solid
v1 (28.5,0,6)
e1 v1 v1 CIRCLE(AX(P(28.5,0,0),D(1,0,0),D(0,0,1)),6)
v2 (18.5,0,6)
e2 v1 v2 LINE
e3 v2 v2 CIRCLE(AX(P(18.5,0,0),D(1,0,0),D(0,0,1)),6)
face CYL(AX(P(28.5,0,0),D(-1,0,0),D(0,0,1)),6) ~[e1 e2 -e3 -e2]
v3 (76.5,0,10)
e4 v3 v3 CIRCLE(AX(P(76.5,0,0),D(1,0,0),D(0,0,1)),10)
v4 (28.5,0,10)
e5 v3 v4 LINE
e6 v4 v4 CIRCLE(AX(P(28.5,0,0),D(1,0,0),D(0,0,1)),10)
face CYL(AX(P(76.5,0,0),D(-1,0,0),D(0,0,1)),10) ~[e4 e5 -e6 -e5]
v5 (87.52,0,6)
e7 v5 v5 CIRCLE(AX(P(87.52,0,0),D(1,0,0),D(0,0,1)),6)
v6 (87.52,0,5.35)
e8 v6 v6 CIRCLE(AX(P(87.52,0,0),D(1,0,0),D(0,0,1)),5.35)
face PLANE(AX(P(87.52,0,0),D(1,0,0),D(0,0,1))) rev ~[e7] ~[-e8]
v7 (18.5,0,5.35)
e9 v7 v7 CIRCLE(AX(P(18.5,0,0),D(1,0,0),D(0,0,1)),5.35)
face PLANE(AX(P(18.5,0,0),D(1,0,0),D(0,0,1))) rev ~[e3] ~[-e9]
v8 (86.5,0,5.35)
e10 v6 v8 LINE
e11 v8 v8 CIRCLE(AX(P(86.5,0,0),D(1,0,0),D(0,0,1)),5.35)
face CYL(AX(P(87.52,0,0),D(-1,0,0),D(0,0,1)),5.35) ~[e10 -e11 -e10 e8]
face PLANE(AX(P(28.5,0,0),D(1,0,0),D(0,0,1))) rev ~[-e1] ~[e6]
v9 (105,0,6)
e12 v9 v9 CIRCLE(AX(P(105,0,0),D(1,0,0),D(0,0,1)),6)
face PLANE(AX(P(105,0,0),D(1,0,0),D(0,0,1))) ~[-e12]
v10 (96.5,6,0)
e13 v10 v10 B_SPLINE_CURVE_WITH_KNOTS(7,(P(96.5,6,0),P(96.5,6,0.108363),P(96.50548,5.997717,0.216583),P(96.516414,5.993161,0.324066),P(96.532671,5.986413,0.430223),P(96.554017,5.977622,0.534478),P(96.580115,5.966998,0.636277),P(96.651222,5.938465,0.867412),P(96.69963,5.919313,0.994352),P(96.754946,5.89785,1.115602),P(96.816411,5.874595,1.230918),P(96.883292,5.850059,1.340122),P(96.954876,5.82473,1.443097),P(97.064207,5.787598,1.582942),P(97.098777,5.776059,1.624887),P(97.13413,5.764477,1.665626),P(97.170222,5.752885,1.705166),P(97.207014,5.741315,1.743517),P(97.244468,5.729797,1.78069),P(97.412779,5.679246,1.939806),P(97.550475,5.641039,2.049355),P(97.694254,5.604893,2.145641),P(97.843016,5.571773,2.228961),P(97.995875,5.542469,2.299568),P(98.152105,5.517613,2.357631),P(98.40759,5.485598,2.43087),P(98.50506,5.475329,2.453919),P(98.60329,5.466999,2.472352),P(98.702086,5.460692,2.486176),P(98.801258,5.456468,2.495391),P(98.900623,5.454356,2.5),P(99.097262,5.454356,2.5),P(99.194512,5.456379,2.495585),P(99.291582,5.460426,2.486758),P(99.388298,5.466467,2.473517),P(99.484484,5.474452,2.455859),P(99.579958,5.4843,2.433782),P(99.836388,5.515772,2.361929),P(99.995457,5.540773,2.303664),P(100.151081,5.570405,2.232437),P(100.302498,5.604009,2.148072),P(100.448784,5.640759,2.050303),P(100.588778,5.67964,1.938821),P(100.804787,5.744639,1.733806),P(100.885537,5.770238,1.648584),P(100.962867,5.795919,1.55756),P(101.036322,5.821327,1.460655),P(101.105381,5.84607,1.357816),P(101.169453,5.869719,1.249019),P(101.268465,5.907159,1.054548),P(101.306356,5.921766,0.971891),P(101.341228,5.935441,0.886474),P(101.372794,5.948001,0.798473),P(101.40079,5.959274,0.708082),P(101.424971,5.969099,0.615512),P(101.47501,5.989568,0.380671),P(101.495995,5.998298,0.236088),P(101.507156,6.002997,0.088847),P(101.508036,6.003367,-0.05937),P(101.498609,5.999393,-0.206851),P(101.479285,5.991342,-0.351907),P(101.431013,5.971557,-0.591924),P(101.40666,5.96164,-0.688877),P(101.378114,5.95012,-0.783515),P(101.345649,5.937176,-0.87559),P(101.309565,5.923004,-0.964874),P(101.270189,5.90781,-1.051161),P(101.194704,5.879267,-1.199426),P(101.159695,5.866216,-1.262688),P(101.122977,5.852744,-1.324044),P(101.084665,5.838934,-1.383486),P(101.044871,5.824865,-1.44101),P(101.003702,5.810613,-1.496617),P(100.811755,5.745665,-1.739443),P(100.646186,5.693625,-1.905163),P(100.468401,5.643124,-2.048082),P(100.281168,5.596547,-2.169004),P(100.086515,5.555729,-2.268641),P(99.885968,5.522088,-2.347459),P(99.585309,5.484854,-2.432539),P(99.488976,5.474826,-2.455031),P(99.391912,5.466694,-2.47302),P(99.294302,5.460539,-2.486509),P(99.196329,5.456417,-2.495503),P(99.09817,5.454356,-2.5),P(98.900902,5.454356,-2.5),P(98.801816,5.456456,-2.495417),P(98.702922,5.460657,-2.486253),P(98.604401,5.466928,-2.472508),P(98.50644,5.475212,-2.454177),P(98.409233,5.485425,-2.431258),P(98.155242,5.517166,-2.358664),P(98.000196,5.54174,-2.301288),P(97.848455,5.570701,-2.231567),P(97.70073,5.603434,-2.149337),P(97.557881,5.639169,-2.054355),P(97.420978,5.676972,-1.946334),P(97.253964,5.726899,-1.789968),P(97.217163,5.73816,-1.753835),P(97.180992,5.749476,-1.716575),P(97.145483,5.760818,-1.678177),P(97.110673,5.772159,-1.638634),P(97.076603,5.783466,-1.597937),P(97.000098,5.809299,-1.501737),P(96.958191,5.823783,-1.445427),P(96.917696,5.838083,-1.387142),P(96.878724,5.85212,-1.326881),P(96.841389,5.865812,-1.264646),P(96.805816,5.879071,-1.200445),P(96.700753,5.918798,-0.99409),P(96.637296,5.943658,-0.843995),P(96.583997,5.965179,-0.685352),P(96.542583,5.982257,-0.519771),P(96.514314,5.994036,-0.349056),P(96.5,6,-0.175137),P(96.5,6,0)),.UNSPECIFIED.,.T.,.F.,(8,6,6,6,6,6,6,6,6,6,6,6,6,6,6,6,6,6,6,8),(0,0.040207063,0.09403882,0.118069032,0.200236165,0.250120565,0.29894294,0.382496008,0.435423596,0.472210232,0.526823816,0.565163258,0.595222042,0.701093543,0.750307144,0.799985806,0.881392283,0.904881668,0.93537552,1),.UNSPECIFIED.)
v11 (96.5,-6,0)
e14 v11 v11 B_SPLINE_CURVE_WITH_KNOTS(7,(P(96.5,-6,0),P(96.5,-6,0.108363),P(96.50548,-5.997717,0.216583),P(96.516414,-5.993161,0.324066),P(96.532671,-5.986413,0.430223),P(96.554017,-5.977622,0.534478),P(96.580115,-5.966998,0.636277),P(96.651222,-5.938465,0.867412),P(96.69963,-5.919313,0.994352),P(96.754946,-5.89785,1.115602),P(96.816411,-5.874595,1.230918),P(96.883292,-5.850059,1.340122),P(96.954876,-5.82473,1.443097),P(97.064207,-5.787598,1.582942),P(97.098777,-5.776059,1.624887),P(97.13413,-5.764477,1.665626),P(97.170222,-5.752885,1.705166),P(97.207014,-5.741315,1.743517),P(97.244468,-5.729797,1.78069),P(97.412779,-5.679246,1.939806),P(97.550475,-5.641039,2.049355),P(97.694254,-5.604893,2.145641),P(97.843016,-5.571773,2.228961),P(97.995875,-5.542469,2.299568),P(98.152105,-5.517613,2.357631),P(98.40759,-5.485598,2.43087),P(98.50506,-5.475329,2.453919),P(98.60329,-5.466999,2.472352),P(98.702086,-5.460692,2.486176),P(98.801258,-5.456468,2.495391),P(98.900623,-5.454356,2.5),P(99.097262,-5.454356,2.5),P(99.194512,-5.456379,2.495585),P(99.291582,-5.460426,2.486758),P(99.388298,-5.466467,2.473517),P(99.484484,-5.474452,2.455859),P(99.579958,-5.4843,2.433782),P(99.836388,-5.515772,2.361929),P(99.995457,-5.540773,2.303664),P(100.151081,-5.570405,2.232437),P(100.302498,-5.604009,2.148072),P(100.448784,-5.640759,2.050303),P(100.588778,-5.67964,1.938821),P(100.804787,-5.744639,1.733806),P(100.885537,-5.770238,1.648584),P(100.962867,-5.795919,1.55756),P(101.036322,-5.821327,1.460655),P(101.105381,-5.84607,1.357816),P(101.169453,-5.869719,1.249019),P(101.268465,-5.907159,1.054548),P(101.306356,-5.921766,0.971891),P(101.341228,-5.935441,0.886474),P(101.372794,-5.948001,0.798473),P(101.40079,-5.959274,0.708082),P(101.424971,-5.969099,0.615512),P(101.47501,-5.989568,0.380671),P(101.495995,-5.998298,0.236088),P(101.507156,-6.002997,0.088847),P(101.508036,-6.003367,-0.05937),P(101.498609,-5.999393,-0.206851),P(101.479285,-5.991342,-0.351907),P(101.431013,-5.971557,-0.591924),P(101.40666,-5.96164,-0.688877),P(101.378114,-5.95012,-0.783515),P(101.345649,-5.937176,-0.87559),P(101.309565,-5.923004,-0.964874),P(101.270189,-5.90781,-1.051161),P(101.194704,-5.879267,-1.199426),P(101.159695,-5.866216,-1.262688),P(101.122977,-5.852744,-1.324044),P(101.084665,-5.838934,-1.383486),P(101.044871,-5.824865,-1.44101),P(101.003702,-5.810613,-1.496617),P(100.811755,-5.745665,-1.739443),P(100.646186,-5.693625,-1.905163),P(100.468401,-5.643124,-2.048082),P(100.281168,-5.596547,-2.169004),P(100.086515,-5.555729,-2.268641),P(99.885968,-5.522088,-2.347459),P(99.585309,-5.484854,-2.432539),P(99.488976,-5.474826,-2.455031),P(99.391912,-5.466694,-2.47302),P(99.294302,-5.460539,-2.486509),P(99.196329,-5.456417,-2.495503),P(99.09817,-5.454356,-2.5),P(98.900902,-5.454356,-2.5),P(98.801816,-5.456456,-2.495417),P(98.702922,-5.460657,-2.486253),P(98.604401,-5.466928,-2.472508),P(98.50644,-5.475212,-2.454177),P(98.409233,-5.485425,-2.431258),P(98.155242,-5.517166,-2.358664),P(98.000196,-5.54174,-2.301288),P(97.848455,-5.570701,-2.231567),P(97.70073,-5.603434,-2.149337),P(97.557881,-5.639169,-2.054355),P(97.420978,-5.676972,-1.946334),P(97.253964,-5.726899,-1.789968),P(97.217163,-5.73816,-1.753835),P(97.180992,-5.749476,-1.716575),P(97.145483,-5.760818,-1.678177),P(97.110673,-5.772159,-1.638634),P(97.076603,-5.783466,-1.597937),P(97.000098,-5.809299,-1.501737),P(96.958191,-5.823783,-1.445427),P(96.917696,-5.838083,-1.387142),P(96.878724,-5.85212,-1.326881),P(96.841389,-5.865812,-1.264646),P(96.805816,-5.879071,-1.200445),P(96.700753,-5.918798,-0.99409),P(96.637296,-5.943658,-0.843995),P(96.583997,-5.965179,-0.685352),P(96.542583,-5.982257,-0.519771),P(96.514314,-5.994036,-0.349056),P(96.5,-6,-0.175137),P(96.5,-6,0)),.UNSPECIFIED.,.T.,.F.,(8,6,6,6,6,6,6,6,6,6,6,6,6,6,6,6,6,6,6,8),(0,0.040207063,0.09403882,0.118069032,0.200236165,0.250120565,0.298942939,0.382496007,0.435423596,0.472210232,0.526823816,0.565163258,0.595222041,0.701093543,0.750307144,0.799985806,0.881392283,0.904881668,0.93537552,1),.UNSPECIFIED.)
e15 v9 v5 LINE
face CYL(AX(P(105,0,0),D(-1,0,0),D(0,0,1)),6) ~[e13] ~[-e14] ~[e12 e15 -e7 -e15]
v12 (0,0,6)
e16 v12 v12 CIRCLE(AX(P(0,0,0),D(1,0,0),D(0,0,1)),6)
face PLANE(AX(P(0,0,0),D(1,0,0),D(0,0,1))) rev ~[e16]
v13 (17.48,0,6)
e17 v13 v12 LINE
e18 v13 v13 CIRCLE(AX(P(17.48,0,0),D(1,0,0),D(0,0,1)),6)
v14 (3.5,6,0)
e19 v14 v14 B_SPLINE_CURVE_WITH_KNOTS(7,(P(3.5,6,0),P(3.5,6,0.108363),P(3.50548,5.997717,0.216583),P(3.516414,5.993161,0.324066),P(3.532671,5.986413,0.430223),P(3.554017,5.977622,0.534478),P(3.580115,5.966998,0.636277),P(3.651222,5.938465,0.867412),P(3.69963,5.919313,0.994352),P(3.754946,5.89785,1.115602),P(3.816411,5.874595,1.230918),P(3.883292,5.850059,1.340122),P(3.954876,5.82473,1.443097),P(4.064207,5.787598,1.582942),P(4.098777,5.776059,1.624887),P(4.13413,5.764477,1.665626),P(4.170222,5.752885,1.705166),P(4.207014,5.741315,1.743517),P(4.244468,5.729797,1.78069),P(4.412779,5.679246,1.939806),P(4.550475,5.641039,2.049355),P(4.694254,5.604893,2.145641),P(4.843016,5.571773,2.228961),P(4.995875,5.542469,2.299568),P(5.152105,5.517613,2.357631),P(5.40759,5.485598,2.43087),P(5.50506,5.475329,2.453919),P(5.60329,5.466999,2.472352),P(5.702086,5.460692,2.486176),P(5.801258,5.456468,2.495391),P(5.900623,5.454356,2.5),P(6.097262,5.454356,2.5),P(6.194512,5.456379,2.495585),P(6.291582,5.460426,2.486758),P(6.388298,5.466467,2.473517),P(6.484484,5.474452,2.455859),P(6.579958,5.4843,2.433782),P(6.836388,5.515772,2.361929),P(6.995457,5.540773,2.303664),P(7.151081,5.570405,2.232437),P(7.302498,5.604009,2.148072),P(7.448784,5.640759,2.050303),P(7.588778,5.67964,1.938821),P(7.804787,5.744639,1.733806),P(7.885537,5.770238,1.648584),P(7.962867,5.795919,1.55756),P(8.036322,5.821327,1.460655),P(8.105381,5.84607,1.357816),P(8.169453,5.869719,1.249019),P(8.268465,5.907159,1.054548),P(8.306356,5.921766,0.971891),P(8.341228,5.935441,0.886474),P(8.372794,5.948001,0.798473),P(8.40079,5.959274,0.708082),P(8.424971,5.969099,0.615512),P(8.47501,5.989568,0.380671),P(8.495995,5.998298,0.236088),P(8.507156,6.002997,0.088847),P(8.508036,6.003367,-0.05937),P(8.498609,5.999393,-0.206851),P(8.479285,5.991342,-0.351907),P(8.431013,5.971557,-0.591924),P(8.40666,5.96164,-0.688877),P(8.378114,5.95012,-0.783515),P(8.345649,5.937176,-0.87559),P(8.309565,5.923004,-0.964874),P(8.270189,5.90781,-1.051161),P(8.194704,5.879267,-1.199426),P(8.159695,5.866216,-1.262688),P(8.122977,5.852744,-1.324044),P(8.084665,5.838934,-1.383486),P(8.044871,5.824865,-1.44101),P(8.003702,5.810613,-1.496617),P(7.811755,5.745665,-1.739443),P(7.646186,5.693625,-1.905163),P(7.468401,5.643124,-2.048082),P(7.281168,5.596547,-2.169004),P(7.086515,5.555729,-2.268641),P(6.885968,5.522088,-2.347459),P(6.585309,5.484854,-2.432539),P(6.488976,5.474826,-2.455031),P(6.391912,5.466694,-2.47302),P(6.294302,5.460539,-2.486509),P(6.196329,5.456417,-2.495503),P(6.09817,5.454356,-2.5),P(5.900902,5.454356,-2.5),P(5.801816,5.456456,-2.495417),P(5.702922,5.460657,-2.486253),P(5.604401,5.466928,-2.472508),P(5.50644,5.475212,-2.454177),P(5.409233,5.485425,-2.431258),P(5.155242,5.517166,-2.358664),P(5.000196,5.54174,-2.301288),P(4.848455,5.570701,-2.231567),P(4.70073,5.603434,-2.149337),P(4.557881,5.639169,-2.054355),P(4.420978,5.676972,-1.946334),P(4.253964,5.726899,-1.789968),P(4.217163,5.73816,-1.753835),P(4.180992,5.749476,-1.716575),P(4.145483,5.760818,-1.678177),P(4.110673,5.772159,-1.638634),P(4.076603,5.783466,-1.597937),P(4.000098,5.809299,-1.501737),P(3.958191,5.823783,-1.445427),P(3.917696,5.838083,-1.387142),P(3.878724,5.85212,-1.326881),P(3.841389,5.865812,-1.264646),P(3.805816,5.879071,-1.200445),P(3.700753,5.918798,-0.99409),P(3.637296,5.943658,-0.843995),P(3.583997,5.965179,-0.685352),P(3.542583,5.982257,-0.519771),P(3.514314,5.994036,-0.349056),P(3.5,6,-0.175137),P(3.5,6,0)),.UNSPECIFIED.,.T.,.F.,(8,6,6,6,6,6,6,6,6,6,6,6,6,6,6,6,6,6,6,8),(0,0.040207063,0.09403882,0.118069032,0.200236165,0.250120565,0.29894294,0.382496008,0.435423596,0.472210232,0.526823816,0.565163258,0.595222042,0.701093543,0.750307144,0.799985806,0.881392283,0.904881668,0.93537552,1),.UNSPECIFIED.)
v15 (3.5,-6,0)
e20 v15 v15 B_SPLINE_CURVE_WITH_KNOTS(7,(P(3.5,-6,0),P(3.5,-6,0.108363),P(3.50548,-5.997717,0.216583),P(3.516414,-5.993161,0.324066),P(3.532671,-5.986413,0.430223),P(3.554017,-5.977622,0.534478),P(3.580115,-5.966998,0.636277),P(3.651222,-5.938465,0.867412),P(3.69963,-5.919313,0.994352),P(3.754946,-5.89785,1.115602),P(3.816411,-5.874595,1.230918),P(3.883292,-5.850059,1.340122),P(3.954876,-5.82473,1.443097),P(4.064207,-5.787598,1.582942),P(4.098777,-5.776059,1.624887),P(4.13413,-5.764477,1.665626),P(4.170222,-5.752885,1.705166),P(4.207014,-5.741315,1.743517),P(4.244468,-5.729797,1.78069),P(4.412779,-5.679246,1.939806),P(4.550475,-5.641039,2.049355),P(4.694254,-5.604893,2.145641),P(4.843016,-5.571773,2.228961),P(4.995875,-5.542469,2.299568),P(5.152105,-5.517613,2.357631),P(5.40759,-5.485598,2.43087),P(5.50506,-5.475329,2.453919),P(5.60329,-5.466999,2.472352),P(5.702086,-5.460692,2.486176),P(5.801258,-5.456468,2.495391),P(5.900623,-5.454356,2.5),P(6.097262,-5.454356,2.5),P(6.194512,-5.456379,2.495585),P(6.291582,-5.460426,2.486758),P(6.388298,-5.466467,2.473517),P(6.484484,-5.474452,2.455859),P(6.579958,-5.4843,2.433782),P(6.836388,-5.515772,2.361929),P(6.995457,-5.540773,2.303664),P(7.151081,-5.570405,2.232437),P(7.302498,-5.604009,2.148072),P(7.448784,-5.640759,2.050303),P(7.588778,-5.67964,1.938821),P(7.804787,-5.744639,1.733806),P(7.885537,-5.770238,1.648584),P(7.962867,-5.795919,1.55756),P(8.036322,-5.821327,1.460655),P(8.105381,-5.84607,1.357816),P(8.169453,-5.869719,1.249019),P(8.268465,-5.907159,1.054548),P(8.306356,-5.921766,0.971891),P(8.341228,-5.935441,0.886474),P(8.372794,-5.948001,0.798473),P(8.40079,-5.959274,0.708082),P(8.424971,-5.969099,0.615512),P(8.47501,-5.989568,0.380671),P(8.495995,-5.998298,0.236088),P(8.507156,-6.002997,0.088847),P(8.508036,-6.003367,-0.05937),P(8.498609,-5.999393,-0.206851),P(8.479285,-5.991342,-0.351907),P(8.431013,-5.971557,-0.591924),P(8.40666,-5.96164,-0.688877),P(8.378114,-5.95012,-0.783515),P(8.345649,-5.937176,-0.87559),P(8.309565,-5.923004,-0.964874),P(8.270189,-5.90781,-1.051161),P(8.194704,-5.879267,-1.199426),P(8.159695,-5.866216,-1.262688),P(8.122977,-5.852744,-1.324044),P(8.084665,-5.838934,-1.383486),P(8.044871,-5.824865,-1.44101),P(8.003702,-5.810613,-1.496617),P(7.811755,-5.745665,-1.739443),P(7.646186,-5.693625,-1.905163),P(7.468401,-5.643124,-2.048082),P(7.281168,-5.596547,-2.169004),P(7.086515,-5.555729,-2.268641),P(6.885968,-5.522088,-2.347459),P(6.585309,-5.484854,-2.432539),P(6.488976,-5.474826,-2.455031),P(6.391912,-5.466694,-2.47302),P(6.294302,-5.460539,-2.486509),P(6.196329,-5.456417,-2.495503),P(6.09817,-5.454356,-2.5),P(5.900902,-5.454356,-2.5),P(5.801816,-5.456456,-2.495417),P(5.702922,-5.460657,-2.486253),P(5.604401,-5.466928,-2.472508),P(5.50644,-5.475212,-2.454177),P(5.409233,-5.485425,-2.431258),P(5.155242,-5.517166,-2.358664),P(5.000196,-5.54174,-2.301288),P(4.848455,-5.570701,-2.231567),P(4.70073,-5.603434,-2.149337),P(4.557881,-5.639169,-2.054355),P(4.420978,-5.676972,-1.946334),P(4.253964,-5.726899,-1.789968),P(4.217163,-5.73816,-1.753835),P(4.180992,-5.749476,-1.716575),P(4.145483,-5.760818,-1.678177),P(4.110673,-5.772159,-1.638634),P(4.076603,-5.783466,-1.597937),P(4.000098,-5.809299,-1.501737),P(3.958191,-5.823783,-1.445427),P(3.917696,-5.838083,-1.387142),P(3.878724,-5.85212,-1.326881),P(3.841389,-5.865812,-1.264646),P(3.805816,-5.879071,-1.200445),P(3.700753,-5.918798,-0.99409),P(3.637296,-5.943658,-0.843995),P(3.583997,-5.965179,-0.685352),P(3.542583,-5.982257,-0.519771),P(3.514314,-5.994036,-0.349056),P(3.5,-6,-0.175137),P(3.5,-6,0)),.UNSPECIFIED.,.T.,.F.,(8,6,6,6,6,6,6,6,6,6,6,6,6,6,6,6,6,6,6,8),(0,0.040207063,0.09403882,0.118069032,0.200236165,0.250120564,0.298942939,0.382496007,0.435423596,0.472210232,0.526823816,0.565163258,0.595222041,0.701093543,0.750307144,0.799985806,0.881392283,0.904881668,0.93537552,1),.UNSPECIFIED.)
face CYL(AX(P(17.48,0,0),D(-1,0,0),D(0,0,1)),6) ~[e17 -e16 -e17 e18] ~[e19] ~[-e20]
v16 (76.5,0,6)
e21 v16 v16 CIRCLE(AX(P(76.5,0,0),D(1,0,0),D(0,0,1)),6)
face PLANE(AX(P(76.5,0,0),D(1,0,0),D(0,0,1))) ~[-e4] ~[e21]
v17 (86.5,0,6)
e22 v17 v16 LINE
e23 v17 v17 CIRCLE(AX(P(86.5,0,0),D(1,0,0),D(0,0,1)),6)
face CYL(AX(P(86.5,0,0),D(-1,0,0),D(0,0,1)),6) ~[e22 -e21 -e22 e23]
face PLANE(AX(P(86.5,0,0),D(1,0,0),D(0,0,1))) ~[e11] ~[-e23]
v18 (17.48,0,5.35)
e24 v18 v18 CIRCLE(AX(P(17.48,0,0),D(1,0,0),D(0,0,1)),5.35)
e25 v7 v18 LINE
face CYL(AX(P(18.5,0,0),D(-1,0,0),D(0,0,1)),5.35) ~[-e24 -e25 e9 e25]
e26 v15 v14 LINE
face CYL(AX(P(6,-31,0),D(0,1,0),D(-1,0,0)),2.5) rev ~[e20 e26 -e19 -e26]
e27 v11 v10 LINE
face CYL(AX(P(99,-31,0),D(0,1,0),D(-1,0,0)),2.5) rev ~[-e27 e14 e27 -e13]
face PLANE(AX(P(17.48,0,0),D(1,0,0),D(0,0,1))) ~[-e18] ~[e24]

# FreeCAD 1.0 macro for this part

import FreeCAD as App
import Part
import Sketcher
from FreeCAD import Vector

doc = App.newDocument("Part")
params = doc.addObject("Spreadsheet::Sheet", "Params")
for row, (alias, value) in enumerate([
    ("sketch1_width", "105 mm"),
    ("sketch1_width2", "10 mm"),
    ("sketch1_width3", "48 mm"),
    ("sketch1_height", "6 mm"),
    ("sketch1_height2", "4 mm"),
    ("revolution_angle", "360 deg"),
    ("sketch2_diameter", "5 mm"),
    ("hole_diameter", "5 mm"),
    ("hole_depth", "25 mm"),
], start=1):
    params.set(f"A{row}", alias)
    params.set(f"B{row}", "=" + value)
    params.setAlias(f"B{row}", alias)

body = doc.addObject("PartDesign::Body", "Body")

sketch1 = body.newObject("Sketcher::SketchObject", "Sketch")
sketch1.AttachmentSupport = (doc.getObject("XZ_Plane"), [""])
sketch1.MapMode = "FlatFace"
sketch1.addGeometry([
    Part.LineSegment(Vector(0, 6, 0), Vector(0, 0, 0)),
    Part.LineSegment(Vector(0, 0, 0), Vector(105, 0, 0)),
    Part.LineSegment(Vector(105, 0, 0), Vector(105, 6, 0)),
    Part.LineSegment(Vector(105, 6, 0), Vector(87.5, 6, 0)),
    Part.LineSegment(Vector(87.5, 6, 0), Vector(87.5, 5.3, 0)),
    Part.LineSegment(Vector(87.5, 5.3, 0), Vector(86.5, 5.3, 0)),
    Part.LineSegment(Vector(86.5, 5.3, 0), Vector(86.5, 6, 0)),
    Part.LineSegment(Vector(86.5, 6, 0), Vector(76.5, 6, 0)),
    Part.LineSegment(Vector(76.5, 6, 0), Vector(76.5, 10, 0)),
    Part.LineSegment(Vector(76.5, 10, 0), Vector(28.5, 10, 0)),
    Part.LineSegment(Vector(28.5, 10, 0), Vector(28.5, 6, 0)),
    Part.LineSegment(Vector(28.5, 6, 0), Vector(18.5, 6, 0)),
    Part.LineSegment(Vector(18.5, 6, 0), Vector(18.5, 5.3, 0)),
    Part.LineSegment(Vector(18.5, 5.3, 0), Vector(17.5, 5.3, 0)),
    Part.LineSegment(Vector(17.5, 5.3, 0), Vector(17.5, 6, 0)),
    Part.LineSegment(Vector(17.5, 6, 0), Vector(0, 6, 0)),
], False)
sketch1.addConstraint([
    Sketcher.Constraint("Coincident", 0, 2, 1, 1),
    Sketcher.Constraint("Coincident", 1, 2, 2, 1),
    Sketcher.Constraint("Coincident", 2, 2, 3, 1),
    Sketcher.Constraint("Coincident", 3, 2, 4, 1),
    Sketcher.Constraint("Coincident", 4, 2, 5, 1),
    Sketcher.Constraint("Coincident", 5, 2, 6, 1),
    Sketcher.Constraint("Coincident", 6, 2, 7, 1),
    Sketcher.Constraint("Coincident", 7, 2, 8, 1),
    Sketcher.Constraint("Coincident", 8, 2, 9, 1),
    Sketcher.Constraint("Coincident", 9, 2, 10, 1),
    Sketcher.Constraint("Coincident", 10, 2, 11, 1),
    Sketcher.Constraint("Coincident", 11, 2, 12, 1),
    Sketcher.Constraint("Coincident", 12, 2, 13, 1),
    Sketcher.Constraint("Coincident", 13, 2, 14, 1),
    Sketcher.Constraint("Coincident", 14, 2, 15, 1),
    Sketcher.Constraint("Coincident", 15, 2, 0, 1),
    Sketcher.Constraint("Vertical", 0),
    Sketcher.Constraint("Horizontal", 1),
    Sketcher.Constraint("Vertical", 2),
    Sketcher.Constraint("Horizontal", 3),
    Sketcher.Constraint("Vertical", 4),
    Sketcher.Constraint("Horizontal", 5),
    Sketcher.Constraint("Vertical", 6),
    Sketcher.Constraint("Horizontal", 7),
    Sketcher.Constraint("Vertical", 8),
    Sketcher.Constraint("Horizontal", 9),
    Sketcher.Constraint("Vertical", 10),
    Sketcher.Constraint("Horizontal", 11),
    Sketcher.Constraint("Vertical", 12),
    Sketcher.Constraint("Horizontal", 13),
    Sketcher.Constraint("Vertical", 14),
    Sketcher.Constraint("Horizontal", 15),
    Sketcher.Constraint("Coincident", 0, 2, -1, 1),
    Sketcher.Constraint("Horizontal", 3, 2, 6, 2),
    Sketcher.Constraint("Horizontal", 7, 2, 10, 2),
    Sketcher.Constraint("Horizontal", 5, 2, 12, 2),
    Sketcher.Constraint("Horizontal", 11, 2, 14, 2),
    Sketcher.Constraint("Equal", 7, 11),
    Sketcher.Constraint("Equal", 5, 13),
    Sketcher.Constraint("Equal", 3, 15),
    Sketcher.Constraint("DistanceX", 1, 1, 1, 2, 105.0),
    Sketcher.Constraint("DistanceX", 7, 2, 7, 1, 10.0),
    Sketcher.Constraint("DistanceX", 9, 2, 9, 1, 48.0),
    Sketcher.Constraint("DistanceY", 0, 2, 0, 1, 6.0),
    Sketcher.Constraint("DistanceY", 8, 1, 8, 2, 4.0),
    Sketcher.Constraint("DistanceX", 3, 2, 3, 1, 17.48),
    Sketcher.Constraint("DistanceY", 4, 2, 4, 1, 0.65),
])
sketch1.setExpression("Constraints[40]", "Params.sketch1_width")
sketch1.setExpression("Constraints[41]", "Params.sketch1_width2")
sketch1.setExpression("Constraints[42]", "Params.sketch1_width3")
sketch1.setExpression("Constraints[43]", "Params.sketch1_height")
sketch1.setExpression("Constraints[44]", "Params.sketch1_height2")
revolution = body.newObject("PartDesign::Revolution", "Revolution")
revolution.Profile = sketch1
revolution.ReferenceAxis = (sketch1, ["H_Axis"])
revolution.setExpression("Angle", "Params.revolution_angle")

sketch2 = body.newObject("Sketcher::SketchObject", "Sketch001")
sketch2.AttachmentSupport = (doc.getObject("XZ_Plane"), [""])
sketch2.MapMode = "FlatFace"
sketch2.AttachmentOffset = App.Placement(Vector(0, 0, 6), App.Rotation())
sketch2.addGeometry([
    Part.Circle(Vector(6, 0, 0), Vector(0, 0, 1), 2.5),
    Part.Circle(Vector(99, 0, 0), Vector(0, 0, 1), 2.5),
], False)
sketch2.addConstraint([
    Sketcher.Constraint("Equal", 0, 1),
    Sketcher.Constraint("PointOnObject", 0, 3, -1),
    Sketcher.Constraint("PointOnObject", 1, 3, -1),
    Sketcher.Constraint("Diameter", 0, 5.0),
    Sketcher.Constraint("DistanceX", -1, 1, 0, 3, 6.0),
    Sketcher.Constraint("DistanceX", -1, 1, 1, 3, 99.0),
])
sketch2.setExpression("Constraints[3]", "Params.sketch2_diameter")
doc.recompute()
hole = body.newObject("PartDesign::Hole", "Hole")
hole.Profile = sketch2
hole.ThreadType = "None"
hole.setExpression("Diameter", "Params.hole_diameter")
hole.DepthType = "Dimension"
hole.setExpression("Depth", "Params.hole_depth")
hole.DrillPoint = "Flat"

doc.recompute()
